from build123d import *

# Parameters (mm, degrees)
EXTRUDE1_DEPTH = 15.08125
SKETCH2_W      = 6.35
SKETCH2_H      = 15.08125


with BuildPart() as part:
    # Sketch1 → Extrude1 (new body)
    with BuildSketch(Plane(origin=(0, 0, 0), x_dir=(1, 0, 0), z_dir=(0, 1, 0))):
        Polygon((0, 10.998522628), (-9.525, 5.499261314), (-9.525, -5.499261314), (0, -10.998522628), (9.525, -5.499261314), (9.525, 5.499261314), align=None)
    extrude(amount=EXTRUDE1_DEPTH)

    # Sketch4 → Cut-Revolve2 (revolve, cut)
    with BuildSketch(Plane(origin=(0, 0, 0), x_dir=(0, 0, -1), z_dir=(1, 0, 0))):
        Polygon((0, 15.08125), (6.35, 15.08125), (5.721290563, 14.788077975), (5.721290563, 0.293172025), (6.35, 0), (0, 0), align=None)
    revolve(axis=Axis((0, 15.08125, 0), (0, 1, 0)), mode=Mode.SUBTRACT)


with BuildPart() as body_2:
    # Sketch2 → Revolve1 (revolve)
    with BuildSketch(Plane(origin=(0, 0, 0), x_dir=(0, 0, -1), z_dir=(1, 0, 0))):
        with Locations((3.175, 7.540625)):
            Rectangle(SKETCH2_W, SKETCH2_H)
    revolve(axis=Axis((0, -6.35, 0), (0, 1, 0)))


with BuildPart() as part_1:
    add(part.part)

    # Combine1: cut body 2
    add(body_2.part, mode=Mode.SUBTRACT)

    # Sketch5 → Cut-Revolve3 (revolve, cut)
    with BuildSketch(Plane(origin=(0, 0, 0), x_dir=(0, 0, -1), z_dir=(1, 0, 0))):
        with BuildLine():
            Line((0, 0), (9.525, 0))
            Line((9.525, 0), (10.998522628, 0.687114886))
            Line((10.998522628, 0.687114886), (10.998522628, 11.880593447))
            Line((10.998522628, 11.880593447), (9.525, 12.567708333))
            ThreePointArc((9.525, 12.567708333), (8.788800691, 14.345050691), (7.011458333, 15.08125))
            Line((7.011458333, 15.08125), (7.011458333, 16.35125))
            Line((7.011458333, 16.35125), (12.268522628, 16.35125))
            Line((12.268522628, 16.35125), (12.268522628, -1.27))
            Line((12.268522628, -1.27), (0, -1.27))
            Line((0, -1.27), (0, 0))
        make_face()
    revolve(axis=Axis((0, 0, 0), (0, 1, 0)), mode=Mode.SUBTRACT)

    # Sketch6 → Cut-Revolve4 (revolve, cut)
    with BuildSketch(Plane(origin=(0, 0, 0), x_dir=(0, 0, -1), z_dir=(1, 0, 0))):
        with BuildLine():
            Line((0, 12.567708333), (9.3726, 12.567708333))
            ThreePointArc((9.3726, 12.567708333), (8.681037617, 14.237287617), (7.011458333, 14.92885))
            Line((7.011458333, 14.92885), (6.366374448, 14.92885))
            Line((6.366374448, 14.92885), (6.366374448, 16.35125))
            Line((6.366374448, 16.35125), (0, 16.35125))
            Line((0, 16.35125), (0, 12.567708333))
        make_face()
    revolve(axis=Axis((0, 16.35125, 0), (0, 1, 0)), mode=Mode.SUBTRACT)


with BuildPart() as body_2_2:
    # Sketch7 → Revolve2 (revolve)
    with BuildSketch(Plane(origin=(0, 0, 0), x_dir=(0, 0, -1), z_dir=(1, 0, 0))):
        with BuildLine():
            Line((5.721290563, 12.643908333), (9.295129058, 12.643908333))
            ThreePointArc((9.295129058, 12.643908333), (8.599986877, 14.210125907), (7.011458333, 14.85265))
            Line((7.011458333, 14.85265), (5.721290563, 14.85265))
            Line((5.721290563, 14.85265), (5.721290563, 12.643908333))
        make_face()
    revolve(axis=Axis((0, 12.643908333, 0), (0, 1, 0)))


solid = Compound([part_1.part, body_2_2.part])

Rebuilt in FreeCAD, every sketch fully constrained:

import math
import FreeCAD as App
import Part
import Sketcher

V = App.Vector
Q = App.Units.Quantity


def add_polygon(sketch, points):
    """Adds a closed chain of lines whose ends are joined by coincident constraints."""
    first, n = sketch.GeometryCount, len(points)
    for a, b in zip(points, points[1:] + points[:1]):
        sketch.addGeometry(Part.LineSegment(App.Vector(*a, 0), App.Vector(*b, 0)), False)
    for i in range(n):
        sketch.addConstraint(Sketcher.Constraint("Coincident", first + i, 2, first + (i + 1) % n, 1))

doc = App.newDocument("Part")
body = doc.addObject("PartDesign::Body", "Body")

sketch1 = body.newObject("Sketcher::SketchObject", "Sketch")
sketch1.AttachmentSupport = (doc.getObject("XZ_Plane"), [""])
sketch1.MapMode = "FlatFace"
add_polygon(sketch1, [(0, -10.998523), (-9.525, -5.499261), (-9.525, 5.499261), (0, 10.998523), (9.525, 5.499261), (9.525, -5.499261)])
sketch1.addConstraint([
    Sketcher.Constraint("Vertical", 1),
    Sketcher.Constraint("Vertical", 4),
    Sketcher.Constraint("Symmetric", 0, 2, 3, 2, -1, 1),
    Sketcher.Constraint("Symmetric", 2, 2, 5, 2, -1, 1),
    Sketcher.Constraint("PointOnObject", 2, 2, -2),
    Sketcher.Constraint("Parallel", 2, 5),
    Sketcher.Constraint("Horizontal", 1, 2, 3, 2),
    Sketcher.Constraint("Angle", 0, Q("150 deg")),
    Sketcher.Constraint("DistanceX", 1, 2, 3, 2, Q("0.75 in")),
    Sketcher.Constraint("DistanceY", 1, 1, 1, 2, Q("10.998523 mm")),
])
pad1 = body.newObject("PartDesign::Pad", "Pad")
pad1.Profile = sketch1
pad1.Length = Q("0.59375 in")
pad1.Reversed = True

sketch2 = body.newObject("Sketcher::SketchObject", "Sketch001")
sketch2.AttachmentSupport = (doc.getObject("YZ_Plane"), [""])
sketch2.MapMode = "FlatFace"
add_polygon(sketch2, [(15.08125, -6.35), (15.08125, 0), (0, 0), (0, -6.35), (0.293172, -5.721291), (14.788078, -5.721291)])
sketch2.addConstraint([
    Sketcher.Constraint("Vertical", 0),
    Sketcher.Constraint("Horizontal", 1),
    Sketcher.Constraint("Vertical", 2),
    Sketcher.Constraint("Horizontal", 4),
    Sketcher.Constraint("Coincident", 1, 2, -1, 1),
    Sketcher.Constraint("Horizontal", 2, 2, 5, 2),
    Sketcher.Constraint("Equal", 3, 5),
    Sketcher.Constraint("Angle", 3, Q("65 deg")),
    Sketcher.Constraint("DistanceY", 0, 1, 0, 2, Q("0.25 in")),
    Sketcher.Constraint("DistanceX", 1, 2, 1, 1, Q("0.59375 in")),
    Sketcher.Constraint("DistanceX", 4, 1, 4, 2, Q("14.494906 mm")),
])
groove = body.newObject("PartDesign::Groove", "Groove")
groove.Profile = sketch2
groove.ReferenceAxis = (sketch2, ["H_Axis"])
groove.Angle = 360
body2 = doc.addObject("PartDesign::Body", "Body001")

sketch3 = body2.newObject("Sketcher::SketchObject", "Sketch002")
sketch3.AttachmentSupport = (doc.getObject("YZ_Plane001"), [""])
sketch3.MapMode = "FlatFace"
add_polygon(sketch3, [(15.08125, 0), (0, 0), (0, -6.35), (15.08125, -6.35)])
sketch3.addConstraint([
    Sketcher.Constraint("Horizontal", 0),
    Sketcher.Constraint("Vertical", 1),
    Sketcher.Constraint("Horizontal", 2),
    Sketcher.Constraint("Vertical", 3),
    Sketcher.Constraint("Coincident", 0, 2, -1, 1),
    Sketcher.Constraint("DistanceY", 1, 2, 1, 1, Q("0.25 in")),
    Sketcher.Constraint("DistanceX", 0, 2, 0, 1, Q("0.59375 in")),
])
revolution = body2.newObject("PartDesign::Revolution", "Revolution")
revolution.Profile = sketch3
revolution.ReferenceAxis = (sketch3, ["H_Axis"])
revolution.Angle = 360
doc.recompute()

boolean = body.newObject("PartDesign::Boolean", "Boolean")
boolean.Type = "Cut"
boolean.addObjects([body2])

sketch4 = body.newObject("Sketcher::SketchObject", "Sketch003")
sketch4.AttachmentSupport = (doc.getObject("YZ_Plane"), [""])
sketch4.MapMode = "FlatFace"
sketch4.addGeometry([
    Part.LineSegment(V(0, -9.525, 0), V(0, 0, 0)),
    Part.LineSegment(V(0, 0, 0), V(-1.27, 0, 0)),
    Part.LineSegment(V(-1.27, 0, 0), V(-1.27, -12.268523, 0)),
    Part.LineSegment(V(-1.27, -12.268523, 0), V(16.35125, -12.268523, 0)),
    Part.LineSegment(V(16.35125, -12.268523, 0), V(16.35125, -7.011458, 0)),
    Part.LineSegment(V(16.35125, -7.011458, 0), V(15.08125, -7.011458, 0)),
    Part.ArcOfCircle(Part.Circle(V(12.567708, -7.011458, 0), V(0, 0, 1), 2.513542), math.radians(-90), math.radians(0)),
    Part.LineSegment(V(12.567708, -9.525, 0), V(11.880593, -10.998523, 0)),
    Part.LineSegment(V(11.880593, -10.998523, 0), V(0.687115, -10.998523, 0)),
    Part.LineSegment(V(0.687115, -10.998523, 0), V(0, -9.525, 0)),
], False)
sketch4.addConstraint([
    Sketcher.Constraint("Coincident", 0, 2, 1, 1),
    Sketcher.Constraint("Coincident", 1, 2, 2, 1),
    Sketcher.Constraint("Coincident", 2, 2, 3, 1),
    Sketcher.Constraint("Coincident", 3, 2, 4, 1),
    Sketcher.Constraint("Coincident", 4, 2, 5, 1),
    Sketcher.Constraint("Coincident", 5, 2, 6, 2),
    Sketcher.Constraint("Coincident", 6, 1, 7, 1),
    Sketcher.Constraint("Coincident", 7, 2, 8, 1),
    Sketcher.Constraint("Coincident", 8, 2, 9, 1),
    Sketcher.Constraint("Coincident", 9, 2, 0, 1),
    Sketcher.Constraint("Vertical", 0),
    Sketcher.Constraint("Horizontal", 1),
    Sketcher.Constraint("Vertical", 2),
    Sketcher.Constraint("Horizontal", 3),
    Sketcher.Constraint("Vertical", 4),
    Sketcher.Constraint("Horizontal", 5),
    Sketcher.Constraint("Horizontal", 8),
    Sketcher.Constraint("Coincident", 0, 2, -1, 1),
    Sketcher.Constraint("Horizontal", 6, 3, 4, 2),
    Sketcher.Constraint("Horizontal", 6, 1, 9, 2),
    Sketcher.Constraint("Equal", 1, 5),
    Sketcher.Constraint("Equal", 7, 9),
    Sketcher.Constraint("Angle", 7, Q("-115 deg")),
    Sketcher.Constraint("DistanceX", 1, 2, 1, 1, Q("0.05 in")),
    Sketcher.Constraint("DistanceY", 0, 1, 0, 2, Q("0.375 in")),
    Sketcher.Constraint("DistanceY", 3, 2, 7, 2, Q("0.05 in")),
    Sketcher.Constraint("DistanceX", -1, 1, 5, 2, Q("0.59375 in")),
    Sketcher.Constraint("Radius", 6, Q("2.513542 mm")),
    Sketcher.Constraint("DistanceX", 8, 2, 8, 1, Q("11.193479 mm")),
    Sketcher.Constraint("DistanceY", 2, 2, 2, 1, Q("12.268523 mm")),
])
groove2 = body.newObject("PartDesign::Groove", "Groove001")
groove2.Profile = sketch4
groove2.ReferenceAxis = (sketch4, ["H_Axis"])
groove2.Angle = 360

sketch5 = body.newObject("Sketcher::SketchObject", "Sketch004")
sketch5.AttachmentSupport = (doc.getObject("YZ_Plane"), [""])
sketch5.MapMode = "FlatFace"
sketch5.addGeometry([
    Part.LineSegment(V(12.567708, 0, 0), V(12.567708, -9.3726, 0)),
    Part.ArcOfCircle(Part.Circle(V(12.567708, -7.011458, 0), V(0, 0, 1), 2.361142), math.radians(-90), math.radians(0)),
    Part.LineSegment(V(14.92885, -7.011458, 0), V(14.92885, -6.366374, 0)),
    Part.LineSegment(V(14.92885, -6.366374, 0), V(16.35125, -6.366374, 0)),
    Part.LineSegment(V(16.35125, -6.366374, 0), V(16.35125, 0, 0)),
    Part.LineSegment(V(16.35125, 0, 0), V(12.567708, 0, 0)),
], False)
sketch5.addConstraint([
    Sketcher.Constraint("Coincident", 0, 2, 1, 1),
    Sketcher.Constraint("Tangent", 1, 2, 2, 1),
    Sketcher.Constraint("Coincident", 2, 2, 3, 1),
    Sketcher.Constraint("Coincident", 3, 2, 4, 1),
    Sketcher.Constraint("Coincident", 4, 2, 5, 1),
    Sketcher.Constraint("Coincident", 5, 2, 0, 1),
    Sketcher.Constraint("Vertical", 0),
    Sketcher.Constraint("Vertical", 2),
    Sketcher.Constraint("Horizontal", 3),
    Sketcher.Constraint("Vertical", 4),
    Sketcher.Constraint("Horizontal", 5),
    Sketcher.Constraint("PointOnObject", 4, 2, -1),
    Sketcher.Constraint("Vertical", 1, 3, 0, 2),
    Sketcher.Constraint("DistanceX", 3, 1, 3, 2, Q("0.056 in")),
    Sketcher.Constraint("DistanceY", 0, 2, 0, 1, Q("0.369 in")),
    Sketcher.Constraint("Radius", 1, Q("2.361142 mm")),
    Sketcher.Constraint("DistanceY", 2, 1, 2, 2, Q("0.645084 mm")),
    Sketcher.Constraint("DistanceX", -1, 1, 1, 3, Q("12.567708 mm")),
])
groove3 = body.newObject("PartDesign::Groove", "Groove002")
groove3.Profile = sketch5
groove3.ReferenceAxis = (sketch5, ["H_Axis"])
groove3.Angle = 360
body3 = doc.addObject("PartDesign::Body", "Body002")

sketch6 = body3.newObject("Sketcher::SketchObject", "Sketch005")
sketch6.AttachmentSupport = (doc.getObject("YZ_Plane002"), [""])
sketch6.MapMode = "FlatFace"
sketch6.addGeometry([
    Part.LineSegment(V(12.643908, -5.721291, 0), V(12.643908, -9.295129, 0)),
    Part.ArcOfCircle(Part.Circle(V(12.567708, -7.011458, 0), V(0, 0, 1), 2.284942), math.radians(-88.088902), math.radians(0)),
    Part.LineSegment(V(14.85265, -7.011458, 0), V(14.85265, -5.721291, 0)),
    Part.LineSegment(V(14.85265, -5.721291, 0), V(12.643908, -5.721291, 0)),
], False)
sketch6.addConstraint([
    Sketcher.Constraint("Coincident", 0, 2, 1, 1),
    Sketcher.Constraint("Tangent", 1, 2, 2, 1),
    Sketcher.Constraint("Coincident", 2, 2, 3, 1),
    Sketcher.Constraint("Coincident", 3, 2, 0, 1),
    Sketcher.Constraint("Vertical", 0),
    Sketcher.Constraint("Vertical", 2),
    Sketcher.Constraint("Horizontal", 3),
    Sketcher.Constraint("Radius", 1, Q("2.284942 mm")),
    Sketcher.Constraint("DistanceX", 1, 3, 0, 2, Q("0.003 in")),
    Sketcher.Constraint("DistanceY", 0, 2, 0, 1, Q("3.573838 mm")),
    Sketcher.Constraint("DistanceX", -1, 1, 1, 3, Q("12.567708 mm")),
    Sketcher.Constraint("DistanceY", 1, 3, -1, 1, Q("7.011458 mm")),
])
revolution2 = body3.newObject("PartDesign::Revolution", "Revolution001")
revolution2.Profile = sketch6
revolution2.ReferenceAxis = (sketch6, ["H_Axis"])
revolution2.Angle = 360

doc.recompute()
